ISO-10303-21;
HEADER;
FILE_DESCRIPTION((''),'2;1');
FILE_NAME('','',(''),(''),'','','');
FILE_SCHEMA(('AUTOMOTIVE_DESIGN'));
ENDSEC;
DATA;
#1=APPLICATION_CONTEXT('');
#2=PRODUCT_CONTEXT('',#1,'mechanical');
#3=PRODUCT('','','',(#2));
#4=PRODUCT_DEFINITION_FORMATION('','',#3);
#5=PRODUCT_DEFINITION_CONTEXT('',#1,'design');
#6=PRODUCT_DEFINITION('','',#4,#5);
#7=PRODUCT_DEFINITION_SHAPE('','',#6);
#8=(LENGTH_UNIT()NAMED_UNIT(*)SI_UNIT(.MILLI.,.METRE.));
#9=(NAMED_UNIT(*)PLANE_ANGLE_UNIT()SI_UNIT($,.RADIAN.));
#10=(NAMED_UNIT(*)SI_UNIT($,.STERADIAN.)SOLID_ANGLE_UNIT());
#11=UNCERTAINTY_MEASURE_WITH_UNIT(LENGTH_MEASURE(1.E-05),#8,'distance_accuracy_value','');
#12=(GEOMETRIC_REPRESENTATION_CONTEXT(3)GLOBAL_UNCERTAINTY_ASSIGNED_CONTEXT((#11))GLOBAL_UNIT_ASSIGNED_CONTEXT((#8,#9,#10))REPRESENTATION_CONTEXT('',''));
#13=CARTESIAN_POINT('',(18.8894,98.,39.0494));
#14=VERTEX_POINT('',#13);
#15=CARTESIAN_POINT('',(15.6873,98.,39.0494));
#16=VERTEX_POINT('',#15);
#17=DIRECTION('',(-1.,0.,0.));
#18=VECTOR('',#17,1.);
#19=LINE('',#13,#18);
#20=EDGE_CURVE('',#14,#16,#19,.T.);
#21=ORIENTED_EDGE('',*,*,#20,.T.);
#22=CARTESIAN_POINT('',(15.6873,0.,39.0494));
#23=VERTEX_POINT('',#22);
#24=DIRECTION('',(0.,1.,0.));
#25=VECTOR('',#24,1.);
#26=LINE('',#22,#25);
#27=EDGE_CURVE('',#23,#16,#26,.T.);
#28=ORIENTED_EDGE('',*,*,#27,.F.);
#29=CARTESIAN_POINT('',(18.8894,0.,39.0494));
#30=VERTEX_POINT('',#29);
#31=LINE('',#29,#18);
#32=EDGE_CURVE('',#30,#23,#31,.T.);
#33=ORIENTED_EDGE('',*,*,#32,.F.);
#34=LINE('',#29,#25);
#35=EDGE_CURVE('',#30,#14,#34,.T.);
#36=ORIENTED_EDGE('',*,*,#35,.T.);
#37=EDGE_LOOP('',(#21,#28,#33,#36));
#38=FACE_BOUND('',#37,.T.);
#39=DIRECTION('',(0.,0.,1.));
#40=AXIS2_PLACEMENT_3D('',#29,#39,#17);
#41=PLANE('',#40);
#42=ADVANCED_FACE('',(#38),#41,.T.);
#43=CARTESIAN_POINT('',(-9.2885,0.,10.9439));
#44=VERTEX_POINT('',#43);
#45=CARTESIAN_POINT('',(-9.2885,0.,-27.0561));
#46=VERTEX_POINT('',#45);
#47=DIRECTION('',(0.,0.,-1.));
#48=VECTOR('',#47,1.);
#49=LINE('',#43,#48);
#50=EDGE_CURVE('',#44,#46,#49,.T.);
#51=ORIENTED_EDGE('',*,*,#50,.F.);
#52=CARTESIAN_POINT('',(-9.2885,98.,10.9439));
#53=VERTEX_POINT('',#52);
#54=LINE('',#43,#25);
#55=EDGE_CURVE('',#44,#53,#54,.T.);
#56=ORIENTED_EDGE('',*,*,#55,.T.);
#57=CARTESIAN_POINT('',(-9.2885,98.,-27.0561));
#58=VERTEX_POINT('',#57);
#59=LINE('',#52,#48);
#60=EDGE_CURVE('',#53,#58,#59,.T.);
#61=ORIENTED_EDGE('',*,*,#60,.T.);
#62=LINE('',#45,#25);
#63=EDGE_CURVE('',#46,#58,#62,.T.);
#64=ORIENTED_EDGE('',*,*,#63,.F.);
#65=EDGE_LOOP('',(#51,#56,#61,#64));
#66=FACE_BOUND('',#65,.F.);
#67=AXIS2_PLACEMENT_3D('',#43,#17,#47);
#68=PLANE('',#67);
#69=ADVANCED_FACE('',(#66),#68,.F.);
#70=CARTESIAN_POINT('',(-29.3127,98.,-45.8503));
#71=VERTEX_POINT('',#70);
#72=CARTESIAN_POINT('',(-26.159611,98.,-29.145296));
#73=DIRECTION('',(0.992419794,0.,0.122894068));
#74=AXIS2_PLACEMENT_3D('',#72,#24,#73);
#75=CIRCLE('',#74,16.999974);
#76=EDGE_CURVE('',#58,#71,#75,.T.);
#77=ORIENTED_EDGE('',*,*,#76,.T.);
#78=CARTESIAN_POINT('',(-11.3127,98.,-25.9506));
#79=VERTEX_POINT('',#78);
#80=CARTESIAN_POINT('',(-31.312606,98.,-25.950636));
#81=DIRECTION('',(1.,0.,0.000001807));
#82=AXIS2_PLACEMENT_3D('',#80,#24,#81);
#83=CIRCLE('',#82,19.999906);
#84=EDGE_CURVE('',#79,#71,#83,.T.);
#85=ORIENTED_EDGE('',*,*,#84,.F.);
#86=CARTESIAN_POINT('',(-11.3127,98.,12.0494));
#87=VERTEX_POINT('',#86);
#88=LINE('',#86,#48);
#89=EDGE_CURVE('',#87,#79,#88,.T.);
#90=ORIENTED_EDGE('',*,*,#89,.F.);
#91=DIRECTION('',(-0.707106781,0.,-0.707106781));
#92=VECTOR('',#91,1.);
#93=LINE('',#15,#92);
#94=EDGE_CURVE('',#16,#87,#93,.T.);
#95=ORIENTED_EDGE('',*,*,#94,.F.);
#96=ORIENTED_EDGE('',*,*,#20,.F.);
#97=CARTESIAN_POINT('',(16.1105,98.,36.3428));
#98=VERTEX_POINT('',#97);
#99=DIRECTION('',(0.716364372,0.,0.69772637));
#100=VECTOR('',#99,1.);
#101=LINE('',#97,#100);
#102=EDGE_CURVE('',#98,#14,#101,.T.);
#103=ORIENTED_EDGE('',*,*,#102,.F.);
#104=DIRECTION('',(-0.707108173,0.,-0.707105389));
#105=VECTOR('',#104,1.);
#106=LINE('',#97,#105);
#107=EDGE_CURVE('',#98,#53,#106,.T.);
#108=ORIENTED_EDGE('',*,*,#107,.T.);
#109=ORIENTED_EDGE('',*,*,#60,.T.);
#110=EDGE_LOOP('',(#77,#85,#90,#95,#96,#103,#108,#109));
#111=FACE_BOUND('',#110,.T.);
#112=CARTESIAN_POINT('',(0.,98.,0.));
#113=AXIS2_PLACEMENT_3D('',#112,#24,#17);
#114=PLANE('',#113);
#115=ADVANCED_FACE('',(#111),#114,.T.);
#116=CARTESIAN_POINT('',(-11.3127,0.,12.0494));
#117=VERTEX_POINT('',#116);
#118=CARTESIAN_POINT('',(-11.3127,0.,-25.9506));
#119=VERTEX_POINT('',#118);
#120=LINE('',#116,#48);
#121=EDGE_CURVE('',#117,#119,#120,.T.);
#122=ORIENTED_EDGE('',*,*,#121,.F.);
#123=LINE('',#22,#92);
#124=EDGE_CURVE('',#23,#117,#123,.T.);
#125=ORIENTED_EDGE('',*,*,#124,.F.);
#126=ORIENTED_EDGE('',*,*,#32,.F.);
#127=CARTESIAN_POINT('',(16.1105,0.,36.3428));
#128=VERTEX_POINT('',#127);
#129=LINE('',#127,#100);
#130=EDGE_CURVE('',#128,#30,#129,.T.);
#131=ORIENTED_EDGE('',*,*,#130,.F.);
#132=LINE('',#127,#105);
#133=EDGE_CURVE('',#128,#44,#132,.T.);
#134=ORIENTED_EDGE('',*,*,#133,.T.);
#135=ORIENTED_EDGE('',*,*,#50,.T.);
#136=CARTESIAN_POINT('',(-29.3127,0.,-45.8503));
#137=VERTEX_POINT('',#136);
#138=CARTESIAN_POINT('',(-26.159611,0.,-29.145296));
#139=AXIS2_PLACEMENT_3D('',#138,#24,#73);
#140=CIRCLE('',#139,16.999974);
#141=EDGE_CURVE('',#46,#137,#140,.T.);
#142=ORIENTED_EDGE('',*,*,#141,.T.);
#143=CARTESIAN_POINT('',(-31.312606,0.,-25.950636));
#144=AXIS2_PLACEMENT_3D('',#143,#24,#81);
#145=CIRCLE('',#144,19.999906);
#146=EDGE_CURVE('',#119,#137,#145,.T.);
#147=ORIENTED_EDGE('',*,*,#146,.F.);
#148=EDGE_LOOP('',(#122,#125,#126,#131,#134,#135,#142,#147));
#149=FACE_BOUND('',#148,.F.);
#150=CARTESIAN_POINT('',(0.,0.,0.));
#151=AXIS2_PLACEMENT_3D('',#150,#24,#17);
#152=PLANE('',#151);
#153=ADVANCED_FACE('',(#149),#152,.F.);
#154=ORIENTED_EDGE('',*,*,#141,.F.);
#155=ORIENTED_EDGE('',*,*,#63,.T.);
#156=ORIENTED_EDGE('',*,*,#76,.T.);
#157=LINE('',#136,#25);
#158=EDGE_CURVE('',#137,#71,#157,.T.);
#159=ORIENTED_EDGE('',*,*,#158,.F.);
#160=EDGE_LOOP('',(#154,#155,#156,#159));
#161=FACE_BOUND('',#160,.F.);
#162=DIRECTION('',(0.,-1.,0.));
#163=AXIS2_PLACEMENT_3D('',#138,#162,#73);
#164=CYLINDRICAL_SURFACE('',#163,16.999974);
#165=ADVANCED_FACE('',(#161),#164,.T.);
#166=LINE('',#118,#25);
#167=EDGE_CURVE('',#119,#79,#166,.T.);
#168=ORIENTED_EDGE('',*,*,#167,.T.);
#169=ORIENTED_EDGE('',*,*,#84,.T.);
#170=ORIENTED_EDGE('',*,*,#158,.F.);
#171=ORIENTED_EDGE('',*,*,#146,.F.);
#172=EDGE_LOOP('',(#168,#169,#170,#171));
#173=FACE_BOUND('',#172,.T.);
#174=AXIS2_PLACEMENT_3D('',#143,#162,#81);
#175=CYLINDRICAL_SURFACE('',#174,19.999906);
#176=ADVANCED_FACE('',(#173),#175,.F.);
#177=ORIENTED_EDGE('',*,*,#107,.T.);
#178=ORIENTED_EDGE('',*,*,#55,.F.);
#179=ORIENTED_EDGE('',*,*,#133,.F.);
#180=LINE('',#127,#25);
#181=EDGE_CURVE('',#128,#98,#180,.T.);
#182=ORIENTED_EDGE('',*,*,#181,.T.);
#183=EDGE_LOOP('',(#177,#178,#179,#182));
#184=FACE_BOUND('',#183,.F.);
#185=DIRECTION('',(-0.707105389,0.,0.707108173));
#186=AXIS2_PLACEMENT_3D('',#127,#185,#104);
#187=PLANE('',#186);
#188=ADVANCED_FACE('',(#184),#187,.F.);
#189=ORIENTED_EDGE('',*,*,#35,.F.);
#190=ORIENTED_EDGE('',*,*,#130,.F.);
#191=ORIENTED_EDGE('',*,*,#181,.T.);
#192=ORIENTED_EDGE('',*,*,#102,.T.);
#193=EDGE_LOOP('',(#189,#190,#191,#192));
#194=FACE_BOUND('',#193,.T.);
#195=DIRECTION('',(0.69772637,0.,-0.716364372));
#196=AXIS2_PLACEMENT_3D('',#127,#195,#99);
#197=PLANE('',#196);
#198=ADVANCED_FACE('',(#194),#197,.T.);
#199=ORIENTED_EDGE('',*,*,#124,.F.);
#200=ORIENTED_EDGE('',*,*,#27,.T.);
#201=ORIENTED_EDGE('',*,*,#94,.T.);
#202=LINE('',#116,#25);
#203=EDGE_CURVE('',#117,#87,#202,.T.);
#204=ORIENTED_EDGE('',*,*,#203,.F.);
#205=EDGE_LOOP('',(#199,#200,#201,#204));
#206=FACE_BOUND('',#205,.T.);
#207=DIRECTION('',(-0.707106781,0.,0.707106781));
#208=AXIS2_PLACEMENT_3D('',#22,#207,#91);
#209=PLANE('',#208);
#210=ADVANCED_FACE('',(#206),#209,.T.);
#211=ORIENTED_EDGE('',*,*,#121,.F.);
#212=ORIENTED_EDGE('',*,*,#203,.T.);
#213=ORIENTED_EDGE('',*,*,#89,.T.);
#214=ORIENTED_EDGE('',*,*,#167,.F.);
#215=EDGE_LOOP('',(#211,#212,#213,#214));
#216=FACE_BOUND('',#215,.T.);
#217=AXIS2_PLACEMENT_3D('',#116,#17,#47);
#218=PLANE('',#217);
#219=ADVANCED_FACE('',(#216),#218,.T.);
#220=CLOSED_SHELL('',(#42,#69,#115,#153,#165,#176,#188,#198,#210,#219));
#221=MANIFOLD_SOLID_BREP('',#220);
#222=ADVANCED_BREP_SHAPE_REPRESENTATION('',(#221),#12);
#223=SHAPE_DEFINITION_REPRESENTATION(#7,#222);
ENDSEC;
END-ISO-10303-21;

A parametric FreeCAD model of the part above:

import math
import FreeCAD as App
import Part
import Sketcher

V = App.Vector
Q = App.Units.Quantity

doc = App.newDocument("Part")
body = doc.addObject("PartDesign::Body", "Body")

sketch1 = body.newObject("Sketcher::SketchObject", "Sketch")
sketch1.AttachmentSupport = (doc.getObject("XZ_Plane"), [""])
sketch1.MapMode = "FlatFace"
sketch1.addGeometry([
    Part.LineSegment(V(-11.3, 12, 0), V(15.7, 39, 0)),
    Part.LineSegment(V(15.7, 39, 0), V(18.9, 39, 0)),
    Part.LineSegment(V(18.9, 39, 0), V(16.1, 36.3, 0)),
    Part.LineSegment(V(16.1, 36.3, 0), V(-9.3, 10.9, 0)),
    Part.LineSegment(V(-9.3, 10.9, 0), V(-9.3, -27.1, 0)),
    Part.ArcOfCircle(Part.Circle(V(-26.2, -29.1, 0), V(0, 0, 1), 17), math.radians(-101), math.radians(7)),
    Part.ArcOfCircle(Part.Circle(V(-31.3, -26, 0), V(0, 0, 1), 20), math.radians(-84), math.radians(0)),
    Part.LineSegment(V(-11.3, -26, 0), V(-11.3, 12, 0)),
], False)
sketch1.addConstraint([
    Sketcher.Constraint("Coincident", 0, 2, 1, 1),
    Sketcher.Constraint("Coincident", 1, 2, 2, 1),
    Sketcher.Constraint("Coincident", 2, 2, 3, 1),
    Sketcher.Constraint("Coincident", 3, 2, 4, 1),
    Sketcher.Constraint("Coincident", 4, 2, 5, 2),
    Sketcher.Constraint("Coincident", 5, 1, 6, 1),
    Sketcher.Constraint("Tangent", 6, 2, 7, 1),
    Sketcher.Constraint("Coincident", 7, 2, 0, 1),
    Sketcher.Constraint("Horizontal", 1),
    Sketcher.Constraint("Vertical", 4),
    Sketcher.Constraint("Vertical", 7),
    Sketcher.Constraint("Parallel", 0, 3),
    Sketcher.Constraint("Equal", 4, 7),
    Sketcher.Constraint("Radius", 5, 17.0),
    Sketcher.Constraint("Radius", 6, 20.0),
    Sketcher.Constraint("DistanceY", 4, 2, 4, 1, 38.0),
    Sketcher.Constraint("Angle", 0, Q("45 deg")),
    Sketcher.Constraint("DistanceX", 6, 3, 0, 2, 47.0),
    Sketcher.Constraint("DistanceX", 6, 3, 5, 1, 2.0),
    Sketcher.Constraint("DistanceX", 1, 1, 1, 2, 3.202),
    Sketcher.Constraint("DistanceX", 5, 3, 2, 2, 42.27),
    Sketcher.Constraint("DistanceY", -1, 1, 3, 2, 10.944),
    Sketcher.Constraint("DistanceX", 6, 3, 5, 3, 5.153),
    Sketcher.Constraint("DistanceY", 5, 3, 2, 2, 65.488),
    Sketcher.Constraint("DistanceX", 5, 3, -1, 1, 26.1596),
])
pad1 = body.newObject("PartDesign::Pad", "Pad")
pad1.Profile = sketch1
pad1.Length = 98
pad1.Reversed = True

doc.recompute()
